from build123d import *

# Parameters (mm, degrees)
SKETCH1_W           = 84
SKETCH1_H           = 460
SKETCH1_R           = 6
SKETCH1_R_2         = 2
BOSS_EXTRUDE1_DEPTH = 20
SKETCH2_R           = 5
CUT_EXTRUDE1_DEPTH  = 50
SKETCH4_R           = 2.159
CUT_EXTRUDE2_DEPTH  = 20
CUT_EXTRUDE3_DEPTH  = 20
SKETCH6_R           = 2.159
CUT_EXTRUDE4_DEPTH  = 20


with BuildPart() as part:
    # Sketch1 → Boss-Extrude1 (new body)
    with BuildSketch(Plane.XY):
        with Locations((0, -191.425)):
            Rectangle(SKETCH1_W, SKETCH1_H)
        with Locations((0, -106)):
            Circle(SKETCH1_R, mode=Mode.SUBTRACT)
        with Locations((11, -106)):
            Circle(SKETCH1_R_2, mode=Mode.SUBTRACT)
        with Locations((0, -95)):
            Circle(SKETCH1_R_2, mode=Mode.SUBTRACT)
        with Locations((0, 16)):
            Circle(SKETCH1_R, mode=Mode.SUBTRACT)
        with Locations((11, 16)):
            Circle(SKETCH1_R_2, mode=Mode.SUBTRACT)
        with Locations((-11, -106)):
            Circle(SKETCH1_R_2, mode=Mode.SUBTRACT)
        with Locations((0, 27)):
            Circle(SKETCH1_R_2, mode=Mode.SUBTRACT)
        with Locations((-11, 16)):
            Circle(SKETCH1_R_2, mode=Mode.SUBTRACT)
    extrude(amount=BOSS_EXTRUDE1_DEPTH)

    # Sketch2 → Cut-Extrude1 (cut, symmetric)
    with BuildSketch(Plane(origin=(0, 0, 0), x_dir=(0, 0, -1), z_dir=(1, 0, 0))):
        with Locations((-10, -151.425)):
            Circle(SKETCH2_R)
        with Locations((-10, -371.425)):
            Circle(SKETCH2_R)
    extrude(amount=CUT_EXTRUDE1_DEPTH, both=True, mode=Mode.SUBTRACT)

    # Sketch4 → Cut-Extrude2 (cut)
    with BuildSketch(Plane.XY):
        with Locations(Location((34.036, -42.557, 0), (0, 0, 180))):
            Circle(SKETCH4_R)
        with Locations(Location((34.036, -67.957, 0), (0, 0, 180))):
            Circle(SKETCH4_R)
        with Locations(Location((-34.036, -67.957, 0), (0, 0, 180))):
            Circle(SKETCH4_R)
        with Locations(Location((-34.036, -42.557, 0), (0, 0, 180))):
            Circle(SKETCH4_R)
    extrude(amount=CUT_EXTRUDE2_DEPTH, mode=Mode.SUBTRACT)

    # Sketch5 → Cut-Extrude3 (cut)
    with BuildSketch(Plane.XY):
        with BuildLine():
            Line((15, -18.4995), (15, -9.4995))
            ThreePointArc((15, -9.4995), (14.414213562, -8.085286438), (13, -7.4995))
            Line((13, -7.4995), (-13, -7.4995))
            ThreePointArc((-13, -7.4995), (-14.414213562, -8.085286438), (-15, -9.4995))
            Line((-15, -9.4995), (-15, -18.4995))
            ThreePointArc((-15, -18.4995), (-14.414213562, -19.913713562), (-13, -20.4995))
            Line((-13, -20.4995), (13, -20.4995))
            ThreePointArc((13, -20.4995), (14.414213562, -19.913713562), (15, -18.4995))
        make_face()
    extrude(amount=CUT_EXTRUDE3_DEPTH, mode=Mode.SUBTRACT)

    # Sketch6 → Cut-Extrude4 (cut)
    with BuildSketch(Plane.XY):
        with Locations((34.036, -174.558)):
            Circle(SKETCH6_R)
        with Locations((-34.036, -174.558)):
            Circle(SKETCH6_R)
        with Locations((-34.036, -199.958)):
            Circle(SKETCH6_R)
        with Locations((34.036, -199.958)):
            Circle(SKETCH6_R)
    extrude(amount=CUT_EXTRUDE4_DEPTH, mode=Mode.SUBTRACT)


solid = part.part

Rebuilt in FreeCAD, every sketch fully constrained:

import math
import FreeCAD as App
import Part
import Sketcher
from FreeCAD import Vector
Q = App.Units.Quantity

doc = App.newDocument("Part")
params = doc.addObject("Spreadsheet::Sheet", "Params")
for row, (alias, value) in enumerate([
    ("sketch1_diameter", "4 mm"),
    ("sketch1_diameter2", "12 mm"),
    ("sketch1_width", "84 mm"),
    ("sketch1_height", "460 mm"),
    ("pad1_length", "20 mm"),
    ("sketch2_diameter", "10 mm"),
    ("pocket1_length", "100 mm"),
    ("pocket2_length", "20 mm"),
    ("sketch4_radius", "2 mm"),
    ("sketch4_width", "26 mm"),
    ("sketch4_height", "9 mm"),
    ("pocket3_length", "20 mm"),
    ("pocket4_length", "20 mm"),
], start=1):
    params.set(f"A{row}", alias)
    params.set(f"B{row}", "=" + value)
    params.setAlias(f"B{row}", alias)

body = doc.addObject("PartDesign::Body", "Body")

sketch1 = body.newObject("Sketcher::SketchObject", "Sketch")
sketch1.AttachmentSupport = (doc.getObject("XY_Plane"), [""])
sketch1.MapMode = "FlatFace"
sketch1.addGeometry(Part.LineSegment(Vector(-42, 38.575, 0), Vector(-42, -421.425, 0)), False)
sketch1.addGeometry(Part.LineSegment(Vector(-42, -421.425, 0), Vector(42, -421.425, 0)), False)
sketch1.addGeometry(Part.LineSegment(Vector(42, -421.425, 0), Vector(42, 38.575, 0)), False)
sketch1.addGeometry(Part.LineSegment(Vector(42, 38.575, 0), Vector(-42, 38.575, 0)), False)
sketch1.addGeometry(Part.Circle(Vector(-11, -106, 0), Vector(0, 0, 1), 2), False)
sketch1.addGeometry(Part.Circle(Vector(0, -106, 0), Vector(0, 0, 1), 6), False)
sketch1.addGeometry(Part.Circle(Vector(0, -95, 0), Vector(0, 0, 1), 2), False)
sketch1.addGeometry(Part.Circle(Vector(11, -106, 0), Vector(0, 0, 1), 2), False)
sketch1.addGeometry(Part.Circle(Vector(-11, 16, 0), Vector(0, 0, 1), 2), False)
sketch1.addGeometry(Part.Circle(Vector(0, 16, 0), Vector(0, 0, 1), 6), False)
sketch1.addGeometry(Part.Circle(Vector(0, 27, 0), Vector(0, 0, 1), 2), False)
sketch1.addGeometry(Part.Circle(Vector(11, 16, 0), Vector(0, 0, 1), 2), False)
sketch1.addConstraint(Sketcher.Constraint("Coincident", 0, 2, 1, 1))
sketch1.addConstraint(Sketcher.Constraint("Coincident", 1, 2, 2, 1))
sketch1.addConstraint(Sketcher.Constraint("Coincident", 2, 2, 3, 1))
sketch1.addConstraint(Sketcher.Constraint("Coincident", 3, 2, 0, 1))
sketch1.addConstraint(Sketcher.Constraint("Vertical", 0))
sketch1.addConstraint(Sketcher.Constraint("Horizontal", 1))
sketch1.addConstraint(Sketcher.Constraint("Vertical", 2))
sketch1.addConstraint(Sketcher.Constraint("Horizontal", 3))
sketch1.addConstraint(Sketcher.Constraint("Equal", 4, 6))
sketch1.addConstraint(Sketcher.Constraint("Equal", 6, 7))
sketch1.addConstraint(Sketcher.Constraint("Equal", 7, 8))
sketch1.addConstraint(Sketcher.Constraint("Equal", 5, 9))
sketch1.addConstraint(Sketcher.Constraint("Equal", 8, 10))
sketch1.addConstraint(Sketcher.Constraint("Equal", 10, 11))
sketch1.addConstraint(Sketcher.Constraint("Symmetric", 4, 3, 7, 3, -2))
sketch1.addConstraint(Sketcher.Constraint("Symmetric", 8, 3, 11, 3, -2))
sketch1.addConstraint(Sketcher.Constraint("PointOnObject", 5, 3, -2))
sketch1.addConstraint(Sketcher.Constraint("PointOnObject", 6, 3, -2))
sketch1.addConstraint(Sketcher.Constraint("PointOnObject", 9, 3, -2))
sketch1.addConstraint(Sketcher.Constraint("PointOnObject", 10, 3, -2))
sketch1.addConstraint(Sketcher.Constraint("Horizontal", 4, 3, 5, 3))
sketch1.addConstraint(Sketcher.Constraint("Horizontal", 8, 3, 9, 3))
sketch1.addConstraint(Sketcher.Constraint("Vertical", 4, 3, 8, 3))
sketch1.addConstraint(Sketcher.Constraint("Diameter", 4, Q("4 mm")))
sketch1.addConstraint(Sketcher.Constraint("Diameter", 5, Q("12 mm")))
sketch1.addConstraint(Sketcher.Constraint("DistanceX", 1, 1, 1, 2, Q("84 mm")))
sketch1.addConstraint(Sketcher.Constraint("DistanceY", 0, 2, 0, 1, Q("460 mm")))
sketch1.addConstraint(Sketcher.Constraint("DistanceX", 4, 3, -1, 1, Q("11 mm")))
sketch1.addConstraint(Sketcher.Constraint("DistanceY", 4, 3, -1, 1, Q("106 mm")))
sketch1.addConstraint(Sketcher.Constraint("DistanceY", 6, 3, -1, 1, Q("95 mm")))
sketch1.addConstraint(Sketcher.Constraint("DistanceY", -1, 1, 8, 3, Q("16 mm")))
sketch1.addConstraint(Sketcher.Constraint("DistanceY", -1, 1, 10, 3, Q("27 mm")))
sketch1.addConstraint(Sketcher.Constraint("DistanceX", 0, 2, -1, 1, Q("42 mm")))
sketch1.addConstraint(Sketcher.Constraint("DistanceY", 0, 2, -1, 1, Q("421.425 mm")))
sketch1.setExpression("Constraints[23]", "Params.sketch1_diameter")
sketch1.setExpression("Constraints[24]", "Params.sketch1_diameter2")
sketch1.setExpression("Constraints[25]", "Params.sketch1_width")
sketch1.setExpression("Constraints[26]", "Params.sketch1_height")
pad1 = body.newObject("PartDesign::Pad", "Pad")
pad1.Profile = sketch1
pad1.setExpression("Length", "Params.pad1_length")

sketch2 = body.newObject("Sketcher::SketchObject", "Sketch001")
sketch2.AttachmentSupport = (doc.getObject("YZ_Plane"), [""])
sketch2.MapMode = "FlatFace"
sketch2.addGeometry(Part.Circle(Vector(-151.425, 10, 0), Vector(0, 0, 1), 5), False)
sketch2.addGeometry(Part.Circle(Vector(-371.425, 10, 0), Vector(0, 0, 1), 5), False)
sketch2.addConstraint(Sketcher.Constraint("Equal", 0, 1))
sketch2.addConstraint(Sketcher.Constraint("Horizontal", 0, 3, 1, 3))
sketch2.addConstraint(Sketcher.Constraint("Diameter", 0, Q("10 mm")))
sketch2.addConstraint(Sketcher.Constraint("DistanceY", -1, 1, 0, 3, Q("10 mm")))
sketch2.addConstraint(Sketcher.Constraint("DistanceX", 1, 3, 0, 3, Q("220 mm")))
sketch2.addConstraint(Sketcher.Constraint("DistanceX", 0, 3, -1, 1, Q("151.425 mm")))
sketch2.setExpression("Constraints[2]", "Params.sketch2_diameter")
pocket1 = body.newObject("PartDesign::Pocket", "Pocket")
pocket1.Profile = sketch2
pocket1.setExpression("Length", "Params.pocket1_length")
pocket1.Midplane = True

sketch3 = body.newObject("Sketcher::SketchObject", "Sketch002")
sketch3.AttachmentSupport = (doc.getObject("XY_Plane"), [""])
sketch3.MapMode = "FlatFace"
sketch3.addGeometry(Part.Circle(Vector(34.036, -42.557, 0), Vector(0, 0, 1), 2.159), False)
sketch3.addGeometry(Part.Circle(Vector(34.036, -67.957, 0), Vector(0, 0, 1), 2.159), False)
sketch3.addGeometry(Part.Circle(Vector(-34.036, -67.957, 0), Vector(0, 0, 1), 2.159), False)
sketch3.addGeometry(Part.Circle(Vector(-34.036, -42.557, 0), Vector(0, 0, 1), 2.159), False)
sketch3.addConstraint(Sketcher.Constraint("Equal", 0, 1))
sketch3.addConstraint(Sketcher.Constraint("Equal", 1, 2))
sketch3.addConstraint(Sketcher.Constraint("Equal", 2, 3))
sketch3.addConstraint(Sketcher.Constraint("Symmetric", 1, 3, 2, 3, -2))
sketch3.addConstraint(Sketcher.Constraint("Symmetric", 0, 3, 3, 3, -2))
sketch3.addConstraint(Sketcher.Constraint("Vertical", 0, 3, 1, 3))
sketch3.addConstraint(Sketcher.Constraint("Diameter", 0, Q("4.318 mm")))
sketch3.addConstraint(Sketcher.Constraint("DistanceY", 1, 3, 0, 3, Q("25.4 mm")))
sketch3.addConstraint(Sketcher.Constraint("DistanceX", -1, 1, 0, 3, Q("34.036 mm")))
sketch3.addConstraint(Sketcher.Constraint("DistanceY", 0, 3, -1, 1, Q("42.557 mm")))
pocket2 = body.newObject("PartDesign::Pocket", "Pocket001")
pocket2.Profile = sketch3
pocket2.setExpression("Length", "Params.pocket2_length")
pocket2.Reversed = True

sketch4 = body.newObject("Sketcher::SketchObject", "Sketch003")
sketch4.AttachmentSupport = (doc.getObject("XY_Plane"), [""])
sketch4.MapMode = "FlatFace"
sketch4.addGeometry(Part.LineSegment(Vector(15, -18.4995, 0), Vector(15, -9.4995, 0)), False)
sketch4.addGeometry(Part.ArcOfCircle(Part.Circle(Vector(13, -9.4995, 0), Vector(0, 0, 1), 2), math.radians(0), math.radians(90)), False)
sketch4.addGeometry(Part.LineSegment(Vector(13, -7.4995, 0), Vector(-13, -7.4995, 0)), False)
sketch4.addGeometry(Part.ArcOfCircle(Part.Circle(Vector(-13, -9.4995, 0), Vector(0, 0, 1), 2), math.radians(90), math.radians(180)), False)
sketch4.addGeometry(Part.LineSegment(Vector(-15, -9.4995, 0), Vector(-15, -18.4995, 0)), False)
sketch4.addGeometry(Part.ArcOfCircle(Part.Circle(Vector(-13, -18.4995, 0), Vector(0, 0, 1), 2), math.radians(-180), math.radians(-90)), False)
sketch4.addGeometry(Part.LineSegment(Vector(-13, -20.4995, 0), Vector(13, -20.4995, 0)), False)
sketch4.addGeometry(Part.ArcOfCircle(Part.Circle(Vector(13, -18.4995, 0), Vector(0, 0, 1), 2), math.radians(-90), math.radians(0)), False)
sketch4.addConstraint(Sketcher.Constraint("Tangent", 0, 2, 1, 1))
sketch4.addConstraint(Sketcher.Constraint("Tangent", 1, 2, 2, 1))
sketch4.addConstraint(Sketcher.Constraint("Tangent", 2, 2, 3, 1))
sketch4.addConstraint(Sketcher.Constraint("Tangent", 3, 2, 4, 1))
sketch4.addConstraint(Sketcher.Constraint("Tangent", 4, 2, 5, 1))
sketch4.addConstraint(Sketcher.Constraint("Tangent", 5, 2, 6, 1))
sketch4.addConstraint(Sketcher.Constraint("Tangent", 6, 2, 7, 1))
sketch4.addConstraint(Sketcher.Constraint("Tangent", 7, 2, 0, 1))
sketch4.addConstraint(Sketcher.Constraint("Vertical", 0))
sketch4.addConstraint(Sketcher.Constraint("Horizontal", 2))
sketch4.addConstraint(Sketcher.Constraint("Vertical", 4))
sketch4.addConstraint(Sketcher.Constraint("Horizontal", 6))
sketch4.addConstraint(Sketcher.Constraint("Equal", 1, 3))
sketch4.addConstraint(Sketcher.Constraint("Equal", 3, 5))
sketch4.addConstraint(Sketcher.Constraint("Equal", 5, 7))
sketch4.addConstraint(Sketcher.Constraint("Radius", 1, Q("2 mm")))
sketch4.addConstraint(Sketcher.Constraint("DistanceX", 2, 2, 2, 1, Q("26 mm")))
sketch4.addConstraint(Sketcher.Constraint("DistanceY", 0, 1, 0, 2, Q("9 mm")))
sketch4.addConstraint(Sketcher.Constraint("DistanceX", -1, 1, 1, 3, Q("13 mm")))
sketch4.addConstraint(Sketcher.Constraint("DistanceY", 1, 3, -1, 1, Q("9.4995 mm")))
sketch4.setExpression("Constraints[15]", "Params.sketch4_radius")
sketch4.setExpression("Constraints[16]", "Params.sketch4_width")
sketch4.setExpression("Constraints[17]", "Params.sketch4_height")
pocket3 = body.newObject("PartDesign::Pocket", "Pocket002")
pocket3.Profile = sketch4
pocket3.setExpression("Length", "Params.pocket3_length")
pocket3.Reversed = True

sketch5 = body.newObject("Sketcher::SketchObject", "Sketch004")
sketch5.AttachmentSupport = (doc.getObject("XY_Plane"), [""])
sketch5.MapMode = "FlatFace"
sketch5.addGeometry(Part.Circle(Vector(34.036, -174.558, 0), Vector(0, 0, 1), 2.159), False)
sketch5.addGeometry(Part.Circle(Vector(-34.036, -174.558, 0), Vector(0, 0, 1), 2.159), False)
sketch5.addGeometry(Part.Circle(Vector(-34.036, -199.958, 0), Vector(0, 0, 1), 2.159), False)
sketch5.addGeometry(Part.Circle(Vector(34.036, -199.958, 0), Vector(0, 0, 1), 2.159), False)
sketch5.addConstraint(Sketcher.Constraint("Equal", 0, 1))
sketch5.addConstraint(Sketcher.Constraint("Equal", 1, 2))
sketch5.addConstraint(Sketcher.Constraint("Equal", 2, 3))
sketch5.addConstraint(Sketcher.Constraint("Symmetric", 0, 3, 1, 3, -2))
sketch5.addConstraint(Sketcher.Constraint("Symmetric", 2, 3, 3, 3, -2))
sketch5.addConstraint(Sketcher.Constraint("Vertical", 1, 3, 2, 3))
sketch5.addConstraint(Sketcher.Constraint("Diameter", 0, Q("4.318 mm")))
sketch5.addConstraint(Sketcher.Constraint("DistanceY", 2, 3, 1, 3, Q("25.4 mm")))
sketch5.addConstraint(Sketcher.Constraint("DistanceX", -1, 1, 0, 3, Q("34.036 mm")))
sketch5.addConstraint(Sketcher.Constraint("DistanceY", 0, 3, -1, 1, Q("174.558 mm")))
pocket4 = body.newObject("PartDesign::Pocket", "Pocket003")
pocket4.Profile = sketch5
pocket4.setExpression("Length", "Params.pocket4_length")
pocket4.Reversed = True

doc.recompute()
